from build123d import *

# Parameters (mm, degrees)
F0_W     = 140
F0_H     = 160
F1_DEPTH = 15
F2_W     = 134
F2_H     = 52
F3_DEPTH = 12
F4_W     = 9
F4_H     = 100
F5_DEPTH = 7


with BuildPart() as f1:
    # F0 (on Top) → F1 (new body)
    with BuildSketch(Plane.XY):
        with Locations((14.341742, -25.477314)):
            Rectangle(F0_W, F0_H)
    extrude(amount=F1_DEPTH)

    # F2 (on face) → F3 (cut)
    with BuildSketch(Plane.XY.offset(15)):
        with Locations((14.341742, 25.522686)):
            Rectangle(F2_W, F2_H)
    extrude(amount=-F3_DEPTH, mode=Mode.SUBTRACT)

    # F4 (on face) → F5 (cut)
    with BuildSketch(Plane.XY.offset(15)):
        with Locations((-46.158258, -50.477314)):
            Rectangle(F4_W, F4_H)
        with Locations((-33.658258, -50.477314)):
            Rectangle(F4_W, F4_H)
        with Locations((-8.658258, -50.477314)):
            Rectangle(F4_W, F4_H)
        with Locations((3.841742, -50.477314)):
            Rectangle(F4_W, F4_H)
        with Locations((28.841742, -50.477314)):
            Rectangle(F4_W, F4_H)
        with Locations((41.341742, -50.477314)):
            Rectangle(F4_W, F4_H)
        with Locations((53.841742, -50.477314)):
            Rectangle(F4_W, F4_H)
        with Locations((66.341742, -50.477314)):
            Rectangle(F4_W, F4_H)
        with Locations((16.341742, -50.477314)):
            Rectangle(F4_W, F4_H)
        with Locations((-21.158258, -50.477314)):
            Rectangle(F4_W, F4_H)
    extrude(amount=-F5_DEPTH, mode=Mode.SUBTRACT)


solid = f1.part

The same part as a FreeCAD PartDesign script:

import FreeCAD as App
import Part
import Sketcher
Q = App.Units.Quantity

doc = App.newDocument("Part")
body = doc.addObject("PartDesign::Body", "Body")

# Sketch on XY plane
sketch1 = body.newObject("Sketcher::SketchObject", "Sketch")
sketch1.AttachmentSupport = (doc.getObject("XY_Plane"), [""])
sketch1.MapMode = "FlatFace"
sketch1.addGeometry(Part.LineSegment(App.Vector(-56, 55, 0), App.Vector(-56, -105, 0)), False)
sketch1.addGeometry(Part.LineSegment(App.Vector(-56, -105, 0), App.Vector(84, -105, 0)), False)
sketch1.addGeometry(Part.LineSegment(App.Vector(84, -105, 0), App.Vector(84, 55, 0)), False)
sketch1.addGeometry(Part.LineSegment(App.Vector(84, 55, 0), App.Vector(-56, 55, 0)), False)
sketch1.addConstraint(Sketcher.Constraint("Coincident", 0, 2, 1, 1))
sketch1.addConstraint(Sketcher.Constraint("Coincident", 1, 2, 2, 1))
sketch1.addConstraint(Sketcher.Constraint("Coincident", 2, 2, 3, 1))
sketch1.addConstraint(Sketcher.Constraint("Coincident", 3, 2, 0, 1))
sketch1.addConstraint(Sketcher.Constraint("Vertical", 0))
sketch1.addConstraint(Sketcher.Constraint("Horizontal", 1))
sketch1.addConstraint(Sketcher.Constraint("Vertical", 2))
sketch1.addConstraint(Sketcher.Constraint("Horizontal", 3))
sketch1.addConstraint(Sketcher.Constraint("DistanceX", 1, 1, 1, 2, Q("140 mm")))
sketch1.addConstraint(Sketcher.Constraint("DistanceY", 0, 2, 0, 1, Q("160 mm")))
sketch1.addConstraint(Sketcher.Constraint("DistanceX", -1, 1, 1, 2, Q("84.341742 mm")))
sketch1.addConstraint(Sketcher.Constraint("DistanceY", 0, 2, -1, 1, Q("105.477314 mm")))
pad1 = body.newObject("PartDesign::Pad", "Pad")
pad1.Profile = sketch1
pad1.Length = 15

# Sketch on XY plane
sketch2 = body.newObject("Sketcher::SketchObject", "Sketch001")
sketch2.AttachmentSupport = (doc.getObject("XY_Plane"), [""])
sketch2.MapMode = "FlatFace"
sketch2.AttachmentOffset = App.Placement(App.Vector(0, 0, 15), App.Rotation())
sketch2.addGeometry(Part.LineSegment(App.Vector(-53, 52, 0), App.Vector(-53, 0, 0)), False)
sketch2.addGeometry(Part.LineSegment(App.Vector(-53, 0, 0), App.Vector(81, 0, 0)), False)
sketch2.addGeometry(Part.LineSegment(App.Vector(81, 0, 0), App.Vector(81, 52, 0)), False)
sketch2.addGeometry(Part.LineSegment(App.Vector(81, 52, 0), App.Vector(-53, 52, 0)), False)
sketch2.addConstraint(Sketcher.Constraint("Coincident", 0, 2, 1, 1))
sketch2.addConstraint(Sketcher.Constraint("Coincident", 1, 2, 2, 1))
sketch2.addConstraint(Sketcher.Constraint("Coincident", 2, 2, 3, 1))
sketch2.addConstraint(Sketcher.Constraint("Coincident", 3, 2, 0, 1))
sketch2.addConstraint(Sketcher.Constraint("Vertical", 0))
sketch2.addConstraint(Sketcher.Constraint("Horizontal", 1))
sketch2.addConstraint(Sketcher.Constraint("Vertical", 2))
sketch2.addConstraint(Sketcher.Constraint("Horizontal", 3))
sketch2.addConstraint(Sketcher.Constraint("DistanceX", 1, 1, 1, 2, Q("134 mm")))
sketch2.addConstraint(Sketcher.Constraint("DistanceY", 0, 2, 0, 1, Q("52 mm")))
sketch2.addConstraint(Sketcher.Constraint("DistanceX", -1, 1, 1, 2, Q("81.341742 mm")))
sketch2.addConstraint(Sketcher.Constraint("DistanceY", 0, 2, -1, 1, Q("0.477314 mm")))
pocket1 = body.newObject("PartDesign::Pocket", "Pocket")
pocket1.Profile = sketch2
pocket1.Length = 12

# Sketch on XY plane
sketch3 = body.newObject("Sketcher::SketchObject", "Sketch002")
sketch3.AttachmentSupport = (doc.getObject("XY_Plane"), [""])
sketch3.MapMode = "FlatFace"
sketch3.AttachmentOffset = App.Placement(App.Vector(0, 0, 15), App.Rotation())
sketch3.addGeometry(Part.LineSegment(App.Vector(-51, 0, 0), App.Vector(-51, -100, 0)), False)
sketch3.addGeometry(Part.LineSegment(App.Vector(-51, -100, 0), App.Vector(-42, -100, 0)), False)
sketch3.addGeometry(Part.LineSegment(App.Vector(-42, -100, 0), App.Vector(-42, 0, 0)), False)
sketch3.addGeometry(Part.LineSegment(App.Vector(-42, 0, 0), App.Vector(-51, 0, 0)), False)
sketch3.addGeometry(Part.LineSegment(App.Vector(-38, 0, 0), App.Vector(-38, -100, 0)), False)
sketch3.addGeometry(Part.LineSegment(App.Vector(-38, -100, 0), App.Vector(-29, -100, 0)), False)
sketch3.addGeometry(Part.LineSegment(App.Vector(-29, -100, 0), App.Vector(-29, 0, 0)), False)
sketch3.addGeometry(Part.LineSegment(App.Vector(-29, 0, 0), App.Vector(-38, 0, 0)), False)
sketch3.addGeometry(Part.LineSegment(App.Vector(-13, 0, 0), App.Vector(-13, -100, 0)), False)
sketch3.addGeometry(Part.LineSegment(App.Vector(-13, -100, 0), App.Vector(-4, -100, 0)), False)
sketch3.addGeometry(Part.LineSegment(App.Vector(-4, -100, 0), App.Vector(-4, 0, 0)), False)
sketch3.addGeometry(Part.LineSegment(App.Vector(-4, 0, 0), App.Vector(-13, 0, 0)), False)
sketch3.addGeometry(Part.LineSegment(App.Vector(-1, 0, 0), App.Vector(-1, -100, 0)), False)
sketch3.addGeometry(Part.LineSegment(App.Vector(-1, -100, 0), App.Vector(8, -100, 0)), False)
sketch3.addGeometry(Part.LineSegment(App.Vector(8, -100, 0), App.Vector(8, 0, 0)), False)
sketch3.addGeometry(Part.LineSegment(App.Vector(8, 0, 0), App.Vector(-1, 0, 0)), False)
sketch3.addGeometry(Part.LineSegment(App.Vector(24, 0, 0), App.Vector(24, -100, 0)), False)
sketch3.addGeometry(Part.LineSegment(App.Vector(24, -100, 0), App.Vector(33, -100, 0)), False)
sketch3.addGeometry(Part.LineSegment(App.Vector(33, -100, 0), App.Vector(33, 0, 0)), False)
sketch3.addGeometry(Part.LineSegment(App.Vector(33, 0, 0), App.Vector(24, 0, 0)), False)
sketch3.addGeometry(Part.LineSegment(App.Vector(37, 0, 0), App.Vector(37, -100, 0)), False)
sketch3.addGeometry(Part.LineSegment(App.Vector(37, -100, 0), App.Vector(46, -100, 0)), False)
sketch3.addGeometry(Part.LineSegment(App.Vector(46, -100, 0), App.Vector(46, 0, 0)), False)
sketch3.addGeometry(Part.LineSegment(App.Vector(46, 0, 0), App.Vector(37, 0, 0)), False)
sketch3.addGeometry(Part.LineSegment(App.Vector(49, 0, 0), App.Vector(49, -100, 0)), False)
sketch3.addGeometry(Part.LineSegment(App.Vector(49, -100, 0), App.Vector(58, -100, 0)), False)
sketch3.addGeometry(Part.LineSegment(App.Vector(58, -100, 0), App.Vector(58, 0, 0)), False)
sketch3.addGeometry(Part.LineSegment(App.Vector(58, 0, 0), App.Vector(49, 0, 0)), False)
sketch3.addGeometry(Part.LineSegment(App.Vector(62, 0, 0), App.Vector(62, -100, 0)), False)
sketch3.addGeometry(Part.LineSegment(App.Vector(62, -100, 0), App.Vector(71, -100, 0)), False)
sketch3.addGeometry(Part.LineSegment(App.Vector(71, -100, 0), App.Vector(71, 0, 0)), False)
sketch3.addGeometry(Part.LineSegment(App.Vector(71, 0, 0), App.Vector(62, 0, 0)), False)
sketch3.addGeometry(Part.LineSegment(App.Vector(12, 0, 0), App.Vector(12, -100, 0)), False)
sketch3.addGeometry(Part.LineSegment(App.Vector(12, -100, 0), App.Vector(21, -100, 0)), False)
sketch3.addGeometry(Part.LineSegment(App.Vector(21, -100, 0), App.Vector(21, 0, 0)), False)
sketch3.addGeometry(Part.LineSegment(App.Vector(21, 0, 0), App.Vector(12, 0, 0)), False)
sketch3.addGeometry(Part.LineSegment(App.Vector(-26, 0, 0), App.Vector(-26, -100, 0)), False)
sketch3.addGeometry(Part.LineSegment(App.Vector(-26, -100, 0), App.Vector(-17, -100, 0)), False)
sketch3.addGeometry(Part.LineSegment(App.Vector(-17, -100, 0), App.Vector(-17, 0, 0)), False)
sketch3.addGeometry(Part.LineSegment(App.Vector(-17, 0, 0), App.Vector(-26, 0, 0)), False)
sketch3.addConstraint(Sketcher.Constraint("Coincident", 0, 2, 1, 1))
sketch3.addConstraint(Sketcher.Constraint("Coincident", 1, 2, 2, 1))
sketch3.addConstraint(Sketcher.Constraint("Coincident", 2, 2, 3, 1))
sketch3.addConstraint(Sketcher.Constraint("Coincident", 3, 2, 0, 1))
sketch3.addConstraint(Sketcher.Constraint("Coincident", 4, 2, 5, 1))
sketch3.addConstraint(Sketcher.Constraint("Coincident", 5, 2, 6, 1))
sketch3.addConstraint(Sketcher.Constraint("Coincident", 6, 2, 7, 1))
sketch3.addConstraint(Sketcher.Constraint("Coincident", 7, 2, 4, 1))
sketch3.addConstraint(Sketcher.Constraint("Coincident", 8, 2, 9, 1))
sketch3.addConstraint(Sketcher.Constraint("Coincident", 9, 2, 10, 1))
sketch3.addConstraint(Sketcher.Constraint("Coincident", 10, 2, 11, 1))
sketch3.addConstraint(Sketcher.Constraint("Coincident", 11, 2, 8, 1))
sketch3.addConstraint(Sketcher.Constraint("Coincident", 12, 2, 13, 1))
sketch3.addConstraint(Sketcher.Constraint("Coincident", 13, 2, 14, 1))
sketch3.addConstraint(Sketcher.Constraint("Coincident", 14, 2, 15, 1))
sketch3.addConstraint(Sketcher.Constraint("Coincident", 15, 2, 12, 1))
sketch3.addConstraint(Sketcher.Constraint("Coincident", 16, 2, 17, 1))
sketch3.addConstraint(Sketcher.Constraint("Coincident", 17, 2, 18, 1))
sketch3.addConstraint(Sketcher.Constraint("Coincident", 18, 2, 19, 1))
sketch3.addConstraint(Sketcher.Constraint("Coincident", 19, 2, 16, 1))
sketch3.addConstraint(Sketcher.Constraint("Coincident", 20, 2, 21, 1))
sketch3.addConstraint(Sketcher.Constraint("Coincident", 21, 2, 22, 1))
sketch3.addConstraint(Sketcher.Constraint("Coincident", 22, 2, 23, 1))
sketch3.addConstraint(Sketcher.Constraint("Coincident", 23, 2, 20, 1))
sketch3.addConstraint(Sketcher.Constraint("Coincident", 24, 2, 25, 1))
sketch3.addConstraint(Sketcher.Constraint("Coincident", 25, 2, 26, 1))
sketch3.addConstraint(Sketcher.Constraint("Coincident", 26, 2, 27, 1))
sketch3.addConstraint(Sketcher.Constraint("Coincident", 27, 2, 24, 1))
sketch3.addConstraint(Sketcher.Constraint("Coincident", 28, 2, 29, 1))
sketch3.addConstraint(Sketcher.Constraint("Coincident", 29, 2, 30, 1))
sketch3.addConstraint(Sketcher.Constraint("Coincident", 30, 2, 31, 1))
sketch3.addConstraint(Sketcher.Constraint("Coincident", 31, 2, 28, 1))
sketch3.addConstraint(Sketcher.Constraint("Coincident", 32, 2, 33, 1))
sketch3.addConstraint(Sketcher.Constraint("Coincident", 33, 2, 34, 1))
sketch3.addConstraint(Sketcher.Constraint("Coincident", 34, 2, 35, 1))
sketch3.addConstraint(Sketcher.Constraint("Coincident", 35, 2, 32, 1))
sketch3.addConstraint(Sketcher.Constraint("Coincident", 36, 2, 37, 1))
sketch3.addConstraint(Sketcher.Constraint("Coincident", 37, 2, 38, 1))
sketch3.addConstraint(Sketcher.Constraint("Coincident", 38, 2, 39, 1))
sketch3.addConstraint(Sketcher.Constraint("Coincident", 39, 2, 36, 1))
sketch3.addConstraint(Sketcher.Constraint("Vertical", 0))
sketch3.addConstraint(Sketcher.Constraint("Horizontal", 1))
sketch3.addConstraint(Sketcher.Constraint("Vertical", 2))
sketch3.addConstraint(Sketcher.Constraint("Horizontal", 3))
sketch3.addConstraint(Sketcher.Constraint("Vertical", 4))
sketch3.addConstraint(Sketcher.Constraint("Horizontal", 5))
sketch3.addConstraint(Sketcher.Constraint("Vertical", 6))
sketch3.addConstraint(Sketcher.Constraint("Horizontal", 7))
sketch3.addConstraint(Sketcher.Constraint("Vertical", 8))
sketch3.addConstraint(Sketcher.Constraint("Horizontal", 9))
sketch3.addConstraint(Sketcher.Constraint("Vertical", 10))
sketch3.addConstraint(Sketcher.Constraint("Horizontal", 11))
sketch3.addConstraint(Sketcher.Constraint("Vertical", 12))
sketch3.addConstraint(Sketcher.Constraint("Horizontal", 13))
sketch3.addConstraint(Sketcher.Constraint("Vertical", 14))
sketch3.addConstraint(Sketcher.Constraint("Horizontal", 15))
sketch3.addConstraint(Sketcher.Constraint("Vertical", 16))
sketch3.addConstraint(Sketcher.Constraint("Horizontal", 17))
sketch3.addConstraint(Sketcher.Constraint("Vertical", 18))
sketch3.addConstraint(Sketcher.Constraint("Horizontal", 19))
sketch3.addConstraint(Sketcher.Constraint("Vertical", 20))
sketch3.addConstraint(Sketcher.Constraint("Horizontal", 21))
sketch3.addConstraint(Sketcher.Constraint("Vertical", 22))
sketch3.addConstraint(Sketcher.Constraint("Horizontal", 23))
sketch3.addConstraint(Sketcher.Constraint("Vertical", 24))
sketch3.addConstraint(Sketcher.Constraint("Horizontal", 25))
sketch3.addConstraint(Sketcher.Constraint("Vertical", 26))
sketch3.addConstraint(Sketcher.Constraint("Horizontal", 27))
sketch3.addConstraint(Sketcher.Constraint("Vertical", 28))
sketch3.addConstraint(Sketcher.Constraint("Horizontal", 29))
sketch3.addConstraint(Sketcher.Constraint("Vertical", 30))
sketch3.addConstraint(Sketcher.Constraint("Horizontal", 31))
sketch3.addConstraint(Sketcher.Constraint("Vertical", 32))
sketch3.addConstraint(Sketcher.Constraint("Horizontal", 33))
sketch3.addConstraint(Sketcher.Constraint("Vertical", 34))
sketch3.addConstraint(Sketcher.Constraint("Horizontal", 35))
sketch3.addConstraint(Sketcher.Constraint("Vertical", 36))
sketch3.addConstraint(Sketcher.Constraint("Horizontal", 37))
sketch3.addConstraint(Sketcher.Constraint("Vertical", 38))
sketch3.addConstraint(Sketcher.Constraint("Horizontal", 39))
sketch3.addConstraint(Sketcher.Constraint("Horizontal", 1, 2, 4, 2))
sketch3.addConstraint(Sketcher.Constraint("Horizontal", 3, 2, 6, 2))
sketch3.addConstraint(Sketcher.Constraint("Horizontal", 5, 2, 8, 2))
sketch3.addConstraint(Sketcher.Constraint("Horizontal", 7, 2, 10, 2))
sketch3.addConstraint(Sketcher.Constraint("Horizontal", 9, 2, 12, 2))
sketch3.addConstraint(Sketcher.Constraint("Horizontal", 11, 2, 14, 2))
sketch3.addConstraint(Sketcher.Constraint("Horizontal", 13, 2, 16, 2))
sketch3.addConstraint(Sketcher.Constraint("Horizontal", 15, 2, 18, 2))
sketch3.addConstraint(Sketcher.Constraint("Horizontal", 17, 2, 20, 2))
sketch3.addConstraint(Sketcher.Constraint("Horizontal", 19, 2, 22, 2))
sketch3.addConstraint(Sketcher.Constraint("Horizontal", 21, 2, 24, 2))
sketch3.addConstraint(Sketcher.Constraint("Horizontal", 23, 2, 26, 2))
sketch3.addConstraint(Sketcher.Constraint("Horizontal", 25, 2, 28, 2))
sketch3.addConstraint(Sketcher.Constraint("Horizontal", 27, 2, 30, 2))
sketch3.addConstraint(Sketcher.Constraint("Horizontal", 29, 2, 32, 2))
sketch3.addConstraint(Sketcher.Constraint("Horizontal", 31, 2, 34, 2))
sketch3.addConstraint(Sketcher.Constraint("Horizontal", 33, 2, 36, 2))
sketch3.addConstraint(Sketcher.Constraint("Horizontal", 35, 2, 38, 2))
sketch3.addConstraint(Sketcher.Constraint("Equal", 3, 5))
sketch3.addConstraint(Sketcher.Constraint("Equal", 7, 9))
sketch3.addConstraint(Sketcher.Constraint("Equal", 11, 13))
sketch3.addConstraint(Sketcher.Constraint("Equal", 15, 17))
sketch3.addConstraint(Sketcher.Constraint("Equal", 19, 21))
sketch3.addConstraint(Sketcher.Constraint("Equal", 23, 25))
sketch3.addConstraint(Sketcher.Constraint("Equal", 27, 29))
sketch3.addConstraint(Sketcher.Constraint("Equal", 31, 33))
sketch3.addConstraint(Sketcher.Constraint("Equal", 35, 37))
sketch3.addConstraint(Sketcher.Constraint("DistanceX", 1, 1, 1, 2, Q("9 mm")))
sketch3.addConstraint(Sketcher.Constraint("DistanceY", 0, 2, 0, 1, Q("100 mm")))
sketch3.addConstraint(Sketcher.Constraint("DistanceX", 5, 2, 8, 2, Q("16 mm")))
sketch3.addConstraint(Sketcher.Constraint("DistanceX", 1, 2, 12, 2, Q("41 mm")))
sketch3.addConstraint(Sketcher.Constraint("DistanceX", 13, 2, 16, 2, Q("16 mm")))
sketch3.addConstraint(Sketcher.Constraint("DistanceX", 9, 2, 20, 2, Q("41 mm")))
sketch3.addConstraint(Sketcher.Constraint("DistanceX", 17, 2, 24, 2, Q("16 mm")))
sketch3.addConstraint(Sketcher.Constraint("DistanceX", 21, 2, 28, 2, Q("16 mm")))
sketch3.addConstraint(Sketcher.Constraint("DistanceX", 9, 2, 32, 2, Q("16 mm")))
sketch3.addConstraint(Sketcher.Constraint("DistanceX", 1, 2, 36, 2, Q("16 mm")))
sketch3.addConstraint(Sketcher.Constraint("DistanceX", 1, 2, 4, 2, Q("3.5 mm")))
sketch3.addConstraint(Sketcher.Constraint("DistanceX", 5, 2, -1, 1, Q("29.158258 mm")))
sketch3.addConstraint(Sketcher.Constraint("DistanceY", 0, 2, -1, 1, Q("100.477314 mm")))
pocket2 = body.newObject("PartDesign::Pocket", "Pocket001")
pocket2.Profile = sketch3
pocket2.Length = 7

doc.recompute()
